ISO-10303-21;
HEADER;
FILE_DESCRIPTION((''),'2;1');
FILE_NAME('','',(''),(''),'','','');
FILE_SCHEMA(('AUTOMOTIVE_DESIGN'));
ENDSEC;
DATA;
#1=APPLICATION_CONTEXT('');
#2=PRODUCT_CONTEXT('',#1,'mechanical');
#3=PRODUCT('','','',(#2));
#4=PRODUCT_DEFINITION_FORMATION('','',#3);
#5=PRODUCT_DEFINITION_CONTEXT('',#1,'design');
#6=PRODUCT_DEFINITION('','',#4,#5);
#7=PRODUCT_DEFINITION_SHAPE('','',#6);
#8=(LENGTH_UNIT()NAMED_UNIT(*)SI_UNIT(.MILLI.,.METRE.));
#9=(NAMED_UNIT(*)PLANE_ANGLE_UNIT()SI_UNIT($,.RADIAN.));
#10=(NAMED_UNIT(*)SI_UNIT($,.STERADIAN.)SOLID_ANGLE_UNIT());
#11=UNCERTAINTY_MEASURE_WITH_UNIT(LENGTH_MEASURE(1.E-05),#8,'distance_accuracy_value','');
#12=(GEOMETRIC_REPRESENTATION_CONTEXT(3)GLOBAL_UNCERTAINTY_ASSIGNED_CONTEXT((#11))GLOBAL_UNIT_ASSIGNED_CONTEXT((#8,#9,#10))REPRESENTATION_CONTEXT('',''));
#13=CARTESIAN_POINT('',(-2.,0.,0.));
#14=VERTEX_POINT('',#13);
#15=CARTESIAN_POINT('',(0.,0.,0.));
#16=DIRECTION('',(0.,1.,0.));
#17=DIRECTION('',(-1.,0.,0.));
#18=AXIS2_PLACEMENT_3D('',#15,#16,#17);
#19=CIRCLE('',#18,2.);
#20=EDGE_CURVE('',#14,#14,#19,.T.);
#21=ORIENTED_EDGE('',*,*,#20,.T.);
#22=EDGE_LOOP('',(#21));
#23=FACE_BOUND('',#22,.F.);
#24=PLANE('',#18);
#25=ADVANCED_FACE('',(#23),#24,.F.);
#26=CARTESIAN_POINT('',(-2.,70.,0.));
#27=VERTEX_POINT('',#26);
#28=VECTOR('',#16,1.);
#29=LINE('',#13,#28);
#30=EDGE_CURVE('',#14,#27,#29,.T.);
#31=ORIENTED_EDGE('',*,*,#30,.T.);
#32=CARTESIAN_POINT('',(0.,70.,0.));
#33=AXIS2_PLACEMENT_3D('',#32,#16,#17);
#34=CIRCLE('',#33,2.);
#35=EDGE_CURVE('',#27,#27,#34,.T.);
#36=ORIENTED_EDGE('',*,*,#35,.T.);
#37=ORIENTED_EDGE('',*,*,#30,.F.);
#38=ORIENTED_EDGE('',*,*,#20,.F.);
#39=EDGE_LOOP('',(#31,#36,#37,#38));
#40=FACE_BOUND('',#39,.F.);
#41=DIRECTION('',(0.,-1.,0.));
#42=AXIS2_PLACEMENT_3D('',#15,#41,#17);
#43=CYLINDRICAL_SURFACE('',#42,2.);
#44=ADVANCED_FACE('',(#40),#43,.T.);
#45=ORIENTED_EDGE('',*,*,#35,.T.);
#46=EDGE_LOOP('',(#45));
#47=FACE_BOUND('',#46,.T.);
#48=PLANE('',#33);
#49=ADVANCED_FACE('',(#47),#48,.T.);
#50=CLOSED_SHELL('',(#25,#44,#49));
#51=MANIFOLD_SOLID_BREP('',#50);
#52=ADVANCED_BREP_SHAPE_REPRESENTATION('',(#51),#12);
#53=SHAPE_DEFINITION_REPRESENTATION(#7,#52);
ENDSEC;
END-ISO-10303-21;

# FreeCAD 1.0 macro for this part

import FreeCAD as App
import Part
import Sketcher

doc = App.newDocument("Part")
params = doc.addObject("Spreadsheet::Sheet", "Params")
for row, (alias, value) in enumerate([
    ("sketch1_diameter", "4 mm"),
    ("pad1_length", "70 mm"),
], start=1):
    params.set(f"A{row}", alias)
    params.set(f"B{row}", "=" + value)
    params.setAlias(f"B{row}", alias)

body = doc.addObject("PartDesign::Body", "Body")

# Sketch on XZ plane
sketch1 = doc.addObject("Sketcher::SketchObject", "Sketch")
body.addObject(sketch1)
sketch1.AttachmentSupport = (doc.XZ_Plane, [""])
sketch1.MapMode = "FlatFace"
sketch1.addGeometry(Part.Circle(App.Vector(0, 0, 0), App.Vector(0, 0, 1), 2), False)
sketch1.addConstraint([
    Sketcher.Constraint("Coincident", 0, 3, -1, 1),
    Sketcher.Constraint("Diameter", 0, 4.0),
])
sketch1.setExpression("Constraints[1]", "Params.sketch1_diameter")
pad1 = doc.addObject("PartDesign::Pad", "Pad")
body.addObject(pad1)
pad1.Profile = sketch1
pad1.setExpression("Length", "Params.pad1_length")
pad1.Reversed = True

doc.recompute()
